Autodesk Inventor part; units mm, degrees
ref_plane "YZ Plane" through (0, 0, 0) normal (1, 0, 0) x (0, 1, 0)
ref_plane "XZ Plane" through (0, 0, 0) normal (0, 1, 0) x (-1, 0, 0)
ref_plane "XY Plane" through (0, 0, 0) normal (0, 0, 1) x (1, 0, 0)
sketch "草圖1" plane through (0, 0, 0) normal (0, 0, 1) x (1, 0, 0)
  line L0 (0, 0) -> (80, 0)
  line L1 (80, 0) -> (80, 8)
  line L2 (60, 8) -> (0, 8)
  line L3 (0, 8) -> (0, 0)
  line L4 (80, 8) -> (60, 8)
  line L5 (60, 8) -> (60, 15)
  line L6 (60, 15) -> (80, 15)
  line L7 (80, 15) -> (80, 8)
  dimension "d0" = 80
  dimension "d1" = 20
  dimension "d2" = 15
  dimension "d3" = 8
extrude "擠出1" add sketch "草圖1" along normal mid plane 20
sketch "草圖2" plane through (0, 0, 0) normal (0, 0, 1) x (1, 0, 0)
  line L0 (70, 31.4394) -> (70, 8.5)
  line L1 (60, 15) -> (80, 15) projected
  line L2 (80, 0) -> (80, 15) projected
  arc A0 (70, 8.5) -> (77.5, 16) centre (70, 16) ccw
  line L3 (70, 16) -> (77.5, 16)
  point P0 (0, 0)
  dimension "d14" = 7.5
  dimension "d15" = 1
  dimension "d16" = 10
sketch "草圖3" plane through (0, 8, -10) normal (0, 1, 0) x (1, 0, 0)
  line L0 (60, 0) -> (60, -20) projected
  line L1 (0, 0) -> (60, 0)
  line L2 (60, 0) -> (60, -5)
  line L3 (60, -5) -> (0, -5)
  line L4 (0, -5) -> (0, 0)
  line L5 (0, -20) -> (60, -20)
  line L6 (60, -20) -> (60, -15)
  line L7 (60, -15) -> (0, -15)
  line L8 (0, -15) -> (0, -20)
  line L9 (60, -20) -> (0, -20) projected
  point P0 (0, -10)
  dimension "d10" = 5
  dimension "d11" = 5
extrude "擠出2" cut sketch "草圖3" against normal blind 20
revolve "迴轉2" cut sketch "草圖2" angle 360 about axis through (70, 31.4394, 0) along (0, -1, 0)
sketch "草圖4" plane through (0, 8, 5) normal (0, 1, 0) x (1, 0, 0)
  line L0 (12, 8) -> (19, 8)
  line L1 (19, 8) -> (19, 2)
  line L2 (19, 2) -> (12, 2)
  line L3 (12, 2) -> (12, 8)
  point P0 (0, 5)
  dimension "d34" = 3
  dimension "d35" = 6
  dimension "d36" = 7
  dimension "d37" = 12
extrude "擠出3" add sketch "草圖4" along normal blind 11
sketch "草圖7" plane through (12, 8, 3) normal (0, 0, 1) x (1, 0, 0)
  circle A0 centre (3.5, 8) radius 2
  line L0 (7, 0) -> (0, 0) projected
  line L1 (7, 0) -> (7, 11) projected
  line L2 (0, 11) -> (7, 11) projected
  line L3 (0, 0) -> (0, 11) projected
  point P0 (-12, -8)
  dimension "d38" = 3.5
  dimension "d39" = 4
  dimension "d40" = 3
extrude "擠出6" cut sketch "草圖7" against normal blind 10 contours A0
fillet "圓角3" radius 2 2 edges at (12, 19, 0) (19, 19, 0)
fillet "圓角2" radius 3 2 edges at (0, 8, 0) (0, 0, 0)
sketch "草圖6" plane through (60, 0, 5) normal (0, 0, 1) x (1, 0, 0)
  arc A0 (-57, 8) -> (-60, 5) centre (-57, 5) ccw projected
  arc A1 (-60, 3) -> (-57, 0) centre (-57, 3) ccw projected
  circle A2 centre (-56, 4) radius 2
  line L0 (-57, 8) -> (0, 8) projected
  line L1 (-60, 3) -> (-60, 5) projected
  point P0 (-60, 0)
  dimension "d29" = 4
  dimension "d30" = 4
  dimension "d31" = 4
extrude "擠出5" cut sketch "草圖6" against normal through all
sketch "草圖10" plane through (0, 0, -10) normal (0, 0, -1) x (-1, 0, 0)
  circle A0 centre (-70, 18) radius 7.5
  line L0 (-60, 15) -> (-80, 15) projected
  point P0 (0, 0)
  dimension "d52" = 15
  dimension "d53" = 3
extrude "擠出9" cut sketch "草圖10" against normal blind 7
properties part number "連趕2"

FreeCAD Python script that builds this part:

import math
import FreeCAD as App
import Part
import Sketcher


def edges_at(feature, points):
    """Names of the edges that pass closest to the given points."""
    edges = feature.Shape.Edges
    near = lambda p: min(range(len(edges)), key=lambda i: edges[i].distToShape(Part.Vertex(*p))[0])
    return sorted({f"Edge{near(p) + 1}" for p in points})

doc = App.newDocument("Part")
body = doc.addObject("PartDesign::Body", "Body")

# Sketch on XY plane
sketch1 = body.newObject("Sketcher::SketchObject", "Sketch")
sketch1.AttachmentSupport = (doc.getObject("XY_Plane"), [""])
sketch1.MapMode = "FlatFace"
sketch1.addGeometry([
    Part.LineSegment(App.Vector(0, 8, 0), App.Vector(0, 0, 0)),  # 0
    Part.LineSegment(App.Vector(0, 0, 0), App.Vector(80, 0, 0)),  # 1
    Part.LineSegment(App.Vector(80, 0, 0), App.Vector(80, 15, 0)),  # 2
    Part.LineSegment(App.Vector(80, 15, 0), App.Vector(60, 15, 0)),  # 3
    Part.LineSegment(App.Vector(60, 15, 0), App.Vector(60, 8, 0)),  # 4
    Part.LineSegment(App.Vector(60, 8, 0), App.Vector(0, 8, 0)),  # 5
], False)
sketch1.addConstraint([
    Sketcher.Constraint("Coincident", 0, 2, 1, 1),
    Sketcher.Constraint("Coincident", 1, 2, 2, 1),
    Sketcher.Constraint("Coincident", 2, 2, 3, 1),
    Sketcher.Constraint("Coincident", 3, 2, 4, 1),
    Sketcher.Constraint("Coincident", 4, 2, 5, 1),
    Sketcher.Constraint("Coincident", 5, 2, 0, 1),
    Sketcher.Constraint("Vertical", 0),
    Sketcher.Constraint("Horizontal", 1),
    Sketcher.Constraint("Vertical", 2),
    Sketcher.Constraint("Horizontal", 3),
    Sketcher.Constraint("Vertical", 4),
    Sketcher.Constraint("Horizontal", 5),
    Sketcher.Constraint("Coincident", 0, 2, -1, 1),
    Sketcher.Constraint("DistanceX", 1, 1, 1, 2, 80.0),
    Sketcher.Constraint("DistanceX", 3, 2, 3, 1, 20.0),
    Sketcher.Constraint("DistanceY", 0, 2, 0, 1, 8.0),
    Sketcher.Constraint("DistanceY", 2, 1, 2, 2, 15.0),
])
pad1 = body.newObject("PartDesign::Pad", "Pad")
pad1.Profile = sketch1
pad1.Length = 20
pad1.Midplane = True

# Sketch on XZ plane
sketch2 = body.newObject("Sketcher::SketchObject", "Sketch001")
sketch2.AttachmentSupport = (doc.getObject("XZ_Plane"), [""])
sketch2.MapMode = "FlatFace"
sketch2.AttachmentOffset = App.Placement(App.Vector(0, 0, -8), App.Rotation())
sketch2.addGeometry([
    Part.LineSegment(App.Vector(60, 10, 0), App.Vector(60, 5, 0)),  # 0
    Part.LineSegment(App.Vector(60, 5, 0), App.Vector(0, 5, 0)),  # 1
    Part.LineSegment(App.Vector(0, 5, 0), App.Vector(0, 10, 0)),  # 2
    Part.LineSegment(App.Vector(0, 10, 0), App.Vector(60, 10, 0)),  # 3
    Part.LineSegment(App.Vector(60, -5, 0), App.Vector(60, -10, 0)),  # 4
    Part.LineSegment(App.Vector(60, -10, 0), App.Vector(0, -10, 0)),  # 5
    Part.LineSegment(App.Vector(0, -10, 0), App.Vector(0, -5, 0)),  # 6
    Part.LineSegment(App.Vector(0, -5, 0), App.Vector(60, -5, 0)),  # 7
], False)
sketch2.addConstraint([
    Sketcher.Constraint("Coincident", 0, 2, 1, 1),
    Sketcher.Constraint("Coincident", 1, 2, 2, 1),
    Sketcher.Constraint("Coincident", 2, 2, 3, 1),
    Sketcher.Constraint("Coincident", 3, 2, 0, 1),
    Sketcher.Constraint("Coincident", 4, 2, 5, 1),
    Sketcher.Constraint("Coincident", 5, 2, 6, 1),
    Sketcher.Constraint("Coincident", 6, 2, 7, 1),
    Sketcher.Constraint("Coincident", 7, 2, 4, 1),
    Sketcher.Constraint("Vertical", 0),
    Sketcher.Constraint("Horizontal", 1),
    Sketcher.Constraint("Vertical", 2),
    Sketcher.Constraint("Horizontal", 3),
    Sketcher.Constraint("Vertical", 4),
    Sketcher.Constraint("Horizontal", 5),
    Sketcher.Constraint("Vertical", 6),
    Sketcher.Constraint("Horizontal", 7),
    Sketcher.Constraint("Symmetric", 2, 2, 5, 2, -1, 1),
    Sketcher.Constraint("Symmetric", 1, 2, 6, 2, -1),
    Sketcher.Constraint("Vertical", 3, 2, 4, 2),
    Sketcher.Constraint("DistanceY", 0, 2, 0, 1, 5.0),
    Sketcher.Constraint("DistanceY", -1, 1, 0, 2, 5.0),
    Sketcher.Constraint("DistanceX", 1, 2, 1, 1, 60.0),
])
pocket1 = body.newObject("PartDesign::Pocket", "Pocket")
pocket1.Profile = sketch2
pocket1.Length = 20
pocket1.Reversed = True

# Sketch on XY plane
sketch3 = body.newObject("Sketcher::SketchObject", "Sketch002")
sketch3.AttachmentSupport = (doc.getObject("XY_Plane"), [""])
sketch3.MapMode = "FlatFace"
sketch3.addGeometry([
    Part.LineSegment(App.Vector(78, 16, 0), App.Vector(70, 16, 0)),
    Part.LineSegment(App.Vector(70, 16, 0), App.Vector(70, 8, 0)),
    Part.ArcOfCircle(Part.Circle(App.Vector(70, 16, 0), App.Vector(0, 0, 1), 8), math.radians(-90), math.radians(0)),
], False)
sketch3.addGeometry(Part.LineSegment(App.Vector(70, 16, 0), App.Vector(70, 8, 0)), True)  # axis
sketch3.addConstraint([
    Sketcher.Constraint("Coincident", 0, 2, 1, 1),
    Sketcher.Constraint("Coincident", 1, 2, 2, 1),
    Sketcher.Constraint("Coincident", 2, 2, 0, 1),
    Sketcher.Constraint("Horizontal", 0),
    Sketcher.Constraint("Vertical", 1),
    Sketcher.Constraint("Vertical", 3),
    Sketcher.Constraint("Coincident", 0, 2, 2, 3),
    Sketcher.Constraint("Coincident", 3, 1, 2, 3),
    Sketcher.Constraint("Equal", 1, 3),
    Sketcher.Constraint("Radius", 2, 7.5),
    Sketcher.Constraint("DistanceX", -1, 1, 2, 3, 70.0),
    Sketcher.Constraint("DistanceY", -1, 1, 2, 3, 16.0),
])
groove = body.newObject("PartDesign::Groove", "Groove")
groove.Profile = sketch3
groove.ReferenceAxis = (sketch3, ["Axis0"])
groove.Angle = 360

# Sketch on XZ plane
sketch4 = body.newObject("Sketcher::SketchObject", "Sketch003")
sketch4.AttachmentSupport = (doc.getObject("XZ_Plane"), [""])
sketch4.MapMode = "FlatFace"
sketch4.AttachmentOffset = App.Placement(App.Vector(0, 0, -8), App.Rotation())
sketch4.addGeometry([
    Part.LineSegment(App.Vector(19, -3, 0), App.Vector(12, -3, 0)),
    Part.LineSegment(App.Vector(12, -3, 0), App.Vector(12, 3, 0)),
    Part.LineSegment(App.Vector(12, 3, 0), App.Vector(19, 3, 0)),
    Part.LineSegment(App.Vector(19, 3, 0), App.Vector(19, -3, 0)),
], False)
sketch4.addConstraint([
    Sketcher.Constraint("Coincident", 0, 2, 1, 1),
    Sketcher.Constraint("Coincident", 1, 2, 2, 1),
    Sketcher.Constraint("Coincident", 2, 2, 3, 1),
    Sketcher.Constraint("Coincident", 3, 2, 0, 1),
    Sketcher.Constraint("Horizontal", 0),
    Sketcher.Constraint("Vertical", 1),
    Sketcher.Constraint("Horizontal", 2),
    Sketcher.Constraint("Vertical", 3),
    Sketcher.Constraint("DistanceX", 0, 2, 0, 1, 7.0),
    Sketcher.Constraint("DistanceY", 1, 1, 1, 2, 6.0),
    Sketcher.Constraint("DistanceX", -1, 1, 0, 2, 12.0),
    Sketcher.Constraint("DistanceY", 0, 2, -1, 1, 3.0),
])
pad2 = body.newObject("PartDesign::Pad", "Pad001")
pad2.Profile = sketch4
pad2.Length = 11
pad2.Reversed = True

# Sketch on XY plane
sketch5 = body.newObject("Sketcher::SketchObject", "Sketch004")
sketch5.AttachmentSupport = (doc.getObject("XY_Plane"), [""])
sketch5.MapMode = "FlatFace"
sketch5.AttachmentOffset = App.Placement(App.Vector(0, 0, 3), App.Rotation())
sketch5.addGeometry(Part.Circle(App.Vector(15.5, 16, 0), App.Vector(0, 0, 1), 2), False)
sketch5.addConstraint([
    Sketcher.Constraint("Diameter", 0, 4.0),
    Sketcher.Constraint("DistanceY", -1, 1, 0, 3, 16.0),
    Sketcher.Constraint("DistanceX", -1, 1, 0, 3, 15.5),
])
pocket2 = body.newObject("PartDesign::Pocket", "Pocket001")
pocket2.Profile = sketch5
pocket2.Length = 10
doc.recompute()

fillet = body.newObject("PartDesign::Fillet", "Fillet")
fillet.Base = (pocket2, edges_at(pocket2, [(12, 19, 0), (19, 19, 0)]))
fillet.Radius = 2
doc.recompute()

fillet2 = body.newObject("PartDesign::Fillet", "Fillet001")
fillet2.Base = (fillet, edges_at(fillet, [(0, 8, 0), (0, 0, 0)]))
fillet2.Radius = 3

# Sketch on XY plane
sketch6 = body.newObject("Sketcher::SketchObject", "Sketch005")
sketch6.AttachmentSupport = (doc.getObject("XY_Plane"), [""])
sketch6.MapMode = "FlatFace"
sketch6.AttachmentOffset = App.Placement(App.Vector(0, 0, 5), App.Rotation())
sketch6.addGeometry(Part.Circle(App.Vector(4, 4, 0), App.Vector(0, 0, 1), 2), False)
sketch6.addConstraint([
    Sketcher.Constraint("Diameter", 0, 4.0),
    Sketcher.Constraint("DistanceX", -1, 1, 0, 3, 4.0),
    Sketcher.Constraint("DistanceY", -1, 1, 0, 3, 4.0),
])
pocket3 = body.newObject("PartDesign::Pocket", "Pocket002")
pocket3.Profile = sketch6
pocket3.Type = "ThroughAll"

# Sketch on XY plane
sketch7 = body.newObject("Sketcher::SketchObject", "Sketch006")
sketch7.AttachmentSupport = (doc.getObject("XY_Plane"), [""])
sketch7.MapMode = "FlatFace"
sketch7.AttachmentOffset = App.Placement(App.Vector(0, 0, -10), App.Rotation())
sketch7.addGeometry(Part.Circle(App.Vector(70, 18, 0), App.Vector(0, 0, 1), 8), False)
sketch7.addConstraint([
    Sketcher.Constraint("Diameter", 0, 15.0),
    Sketcher.Constraint("DistanceX", -1, 1, 0, 3, 70.0),
    Sketcher.Constraint("DistanceY", -1, 1, 0, 3, 18.0),
])
pocket4 = body.newObject("PartDesign::Pocket", "Pocket003")
pocket4.Profile = sketch7
pocket4.Length = 7
pocket4.Reversed = True

doc.recompute()
